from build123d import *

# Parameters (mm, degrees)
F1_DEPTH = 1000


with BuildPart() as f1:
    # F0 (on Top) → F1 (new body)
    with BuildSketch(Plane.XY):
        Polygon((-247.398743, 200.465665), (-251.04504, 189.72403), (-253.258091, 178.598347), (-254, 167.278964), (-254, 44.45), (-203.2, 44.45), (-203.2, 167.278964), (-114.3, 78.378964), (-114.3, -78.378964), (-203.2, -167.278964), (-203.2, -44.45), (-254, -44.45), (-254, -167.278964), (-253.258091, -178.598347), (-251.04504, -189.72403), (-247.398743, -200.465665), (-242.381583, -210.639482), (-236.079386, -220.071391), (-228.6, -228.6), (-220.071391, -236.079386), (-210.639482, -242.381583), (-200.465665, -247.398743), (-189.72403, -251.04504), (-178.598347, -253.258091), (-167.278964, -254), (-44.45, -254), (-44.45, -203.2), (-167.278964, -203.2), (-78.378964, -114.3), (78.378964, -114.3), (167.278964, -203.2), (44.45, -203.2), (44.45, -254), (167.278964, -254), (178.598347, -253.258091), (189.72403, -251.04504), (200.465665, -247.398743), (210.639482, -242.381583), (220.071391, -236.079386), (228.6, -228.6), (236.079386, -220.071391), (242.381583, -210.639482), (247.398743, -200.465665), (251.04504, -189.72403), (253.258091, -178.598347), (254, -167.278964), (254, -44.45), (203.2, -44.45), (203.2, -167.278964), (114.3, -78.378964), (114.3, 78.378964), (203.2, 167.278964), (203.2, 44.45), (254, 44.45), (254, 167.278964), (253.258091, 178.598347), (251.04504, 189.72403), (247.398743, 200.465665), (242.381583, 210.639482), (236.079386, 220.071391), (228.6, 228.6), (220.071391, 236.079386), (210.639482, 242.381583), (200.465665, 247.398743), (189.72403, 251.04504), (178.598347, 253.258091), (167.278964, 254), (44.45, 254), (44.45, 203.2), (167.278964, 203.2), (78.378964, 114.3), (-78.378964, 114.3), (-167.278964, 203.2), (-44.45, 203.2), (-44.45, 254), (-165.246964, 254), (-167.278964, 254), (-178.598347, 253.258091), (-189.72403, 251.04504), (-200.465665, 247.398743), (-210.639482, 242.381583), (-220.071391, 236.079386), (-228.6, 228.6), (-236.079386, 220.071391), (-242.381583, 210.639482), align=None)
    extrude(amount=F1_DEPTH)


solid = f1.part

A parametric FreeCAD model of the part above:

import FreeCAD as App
import Part
import Sketcher
from FreeCAD import Vector
Q = App.Units.Quantity


def add_polygon(sketch, points):
    """Adds a closed chain of lines whose ends are joined by coincident constraints."""
    first, n = sketch.GeometryCount, len(points)
    for a, b in zip(points, points[1:] + points[:1]):
        sketch.addGeometry(Part.LineSegment(App.Vector(*a, 0), App.Vector(*b, 0)), False)
    for i in range(n):
        sketch.addConstraint(Sketcher.Constraint("Coincident", first + i, 2, first + (i + 1) % n, 1))

doc = App.newDocument("Part")
body = doc.addObject("PartDesign::Body", "Body")

sketch1 = doc.addObject("Sketcher::SketchObject", "Sketch")
body.addObject(sketch1)
sketch1.AttachmentSupport = (doc.XY_Plane, [""])
sketch1.MapMode = "FlatFace"
add_polygon(sketch1, [(-247.398743, 200.465665), (-251.04504, 189.72403), (-253.258091, 178.598347), (-254, 167.278964), (-254, 44.45), (-203.2, 44.45), (-203.2, 167.278964), (-114.3, 78.378964), (-114.3, -78.378964), (-203.2, -167.278964), (-203.2, -44.45), (-254, -44.45), (-254, -167.278964), (-253.258091, -178.598347), (-251.04504, -189.72403), (-247.398743, -200.465665), (-242.381583, -210.639482), (-236.079386, -220.071391), (-228.6, -228.6), (-220.071391, -236.079386), (-210.639482, -242.381583), (-200.465665, -247.398743), (-189.72403, -251.04504), (-178.598347, -253.258091), (-167.278964, -254), (-44.45, -254), (-44.45, -203.2), (-167.278964, -203.2), (-78.378964, -114.3), (78.378964, -114.3), (167.278964, -203.2), (44.45, -203.2), (44.45, -254), (167.278964, -254), (178.598347, -253.258091), (189.72403, -251.04504), (200.465665, -247.398743), (210.639482, -242.381583), (220.071391, -236.079386), (228.6, -228.6), (236.079386, -220.071391), (242.381583, -210.639482), (247.398743, -200.465665), (251.04504, -189.72403), (253.258091, -178.598347), (254, -167.278964), (254, -44.45), (203.2, -44.45), (203.2, -167.278964), (114.3, -78.378964), (114.3, 78.378964), (203.2, 167.278964), (203.2, 44.45), (254, 44.45), (254, 167.278964), (253.258091, 178.598347), (251.04504, 189.72403), (247.398743, 200.465665), (242.381583, 210.639482), (236.079386, 220.071391), (228.6, 228.6), (220.071391, 236.079386), (210.639482, 242.381583), (200.465665, 247.398743), (189.72403, 251.04504), (178.598347, 253.258091), (167.278964, 254), (44.45, 254), (44.45, 203.2), (167.278964, 203.2), (78.378964, 114.3), (-78.378964, 114.3), (-167.278964, 203.2), (-44.45, 203.2), (-44.45, 254), (-167.278964, 254), (-178.598347, 253.258091), (-189.72403, 251.04504), (-200.465665, 247.398743), (-210.639482, 242.381583), (-220.071391, 236.079386), (-228.6, 228.6), (-236.079386, 220.071391), (-242.381583, 210.639482)])
sketch1.addConstraint(Sketcher.Constraint("Vertical", 3))
sketch1.addConstraint(Sketcher.Constraint("Horizontal", 4))
sketch1.addConstraint(Sketcher.Constraint("Vertical", 5))
sketch1.addConstraint(Sketcher.Constraint("Vertical", 7))
sketch1.addConstraint(Sketcher.Constraint("Vertical", 9))
sketch1.addConstraint(Sketcher.Constraint("Horizontal", 10))
sketch1.addConstraint(Sketcher.Constraint("Vertical", 11))
sketch1.addConstraint(Sketcher.Constraint("Horizontal", 24))
sketch1.addConstraint(Sketcher.Constraint("Vertical", 25))
sketch1.addConstraint(Sketcher.Constraint("Horizontal", 26))
sketch1.addConstraint(Sketcher.Constraint("Horizontal", 28))
sketch1.addConstraint(Sketcher.Constraint("Horizontal", 30))
sketch1.addConstraint(Sketcher.Constraint("Vertical", 31))
sketch1.addConstraint(Sketcher.Constraint("Horizontal", 32))
sketch1.addConstraint(Sketcher.Constraint("Vertical", 45))
sketch1.addConstraint(Sketcher.Constraint("Horizontal", 46))
sketch1.addConstraint(Sketcher.Constraint("Vertical", 47))
sketch1.addConstraint(Sketcher.Constraint("Vertical", 49))
sketch1.addConstraint(Sketcher.Constraint("Vertical", 51))
sketch1.addConstraint(Sketcher.Constraint("Horizontal", 52))
sketch1.addConstraint(Sketcher.Constraint("Vertical", 53))
sketch1.addConstraint(Sketcher.Constraint("Horizontal", 66))
sketch1.addConstraint(Sketcher.Constraint("Vertical", 67))
sketch1.addConstraint(Sketcher.Constraint("Horizontal", 68))
sketch1.addConstraint(Sketcher.Constraint("Horizontal", 70))
sketch1.addConstraint(Sketcher.Constraint("Horizontal", 72))
sketch1.addConstraint(Sketcher.Constraint("Vertical", 73))
sketch1.addConstraint(Sketcher.Constraint("Horizontal", 74))
sketch1.addConstraint(Sketcher.Constraint("Symmetric", 0, 2, 42, 2, -1, 1))
sketch1.addConstraint(Sketcher.Constraint("Symmetric", 1, 2, 43, 2, -1, 1))
sketch1.addConstraint(Sketcher.Constraint("Symmetric", 2, 2, 44, 2, -1, 1))
sketch1.addConstraint(Sketcher.Constraint("Symmetric", 4, 2, 46, 2, -1, 1))
sketch1.addConstraint(Sketcher.Constraint("Symmetric", 6, 2, 48, 2, -1, 1))
sketch1.addConstraint(Sketcher.Constraint("Symmetric", 8, 2, 50, 2, -1, 1))
sketch1.addConstraint(Sketcher.Constraint("Symmetric", 10, 2, 52, 2, -1, 1))
sketch1.addConstraint(Sketcher.Constraint("Symmetric", 12, 2, 54, 2, -1, 1))
sketch1.addConstraint(Sketcher.Constraint("Symmetric", 13, 2, 55, 2, -1, 1))
sketch1.addConstraint(Sketcher.Constraint("Symmetric", 14, 2, 56, 2, -1, 1))
sketch1.addConstraint(Sketcher.Constraint("Symmetric", 15, 2, 57, 2, -1, 1))
sketch1.addConstraint(Sketcher.Constraint("Symmetric", 16, 2, 58, 2, -1, 1))
sketch1.addConstraint(Sketcher.Constraint("Symmetric", 17, 2, 59, 2, -1, 1))
sketch1.addConstraint(Sketcher.Constraint("Symmetric", 18, 2, 60, 2, -1, 1))
sketch1.addConstraint(Sketcher.Constraint("Symmetric", 19, 2, 61, 2, -1, 1))
sketch1.addConstraint(Sketcher.Constraint("Symmetric", 20, 2, 62, 2, -1, 1))
sketch1.addConstraint(Sketcher.Constraint("Symmetric", 21, 2, 63, 2, -1, 1))
sketch1.addConstraint(Sketcher.Constraint("Symmetric", 22, 2, 64, 2, -1, 1))
sketch1.addConstraint(Sketcher.Constraint("Symmetric", 23, 2, 65, 2, -1, 1))
sketch1.addConstraint(Sketcher.Constraint("Symmetric", 25, 2, 67, 2, -1, 1))
sketch1.addConstraint(Sketcher.Constraint("Symmetric", 27, 2, 69, 2, -1, 1))
sketch1.addConstraint(Sketcher.Constraint("Symmetric", 29, 2, 71, 2, -1, 1))
sketch1.addConstraint(Sketcher.Constraint("Symmetric", 31, 2, 73, 2, -1, 1))
sketch1.addConstraint(Sketcher.Constraint("Symmetric", 33, 2, 75, 2, -1, 1))
sketch1.addConstraint(Sketcher.Constraint("Symmetric", 34, 2, 76, 2, -1, 1))
sketch1.addConstraint(Sketcher.Constraint("Symmetric", 35, 2, 77, 2, -1, 1))
sketch1.addConstraint(Sketcher.Constraint("Symmetric", 36, 2, 78, 2, -1, 1))
sketch1.addConstraint(Sketcher.Constraint("Symmetric", 37, 2, 79, 2, -1, 1))
sketch1.addConstraint(Sketcher.Constraint("Symmetric", 38, 2, 80, 2, -1, 1))
sketch1.addConstraint(Sketcher.Constraint("Symmetric", 39, 2, 81, 2, -1, 1))
sketch1.addConstraint(Sketcher.Constraint("Symmetric", 40, 2, 82, 2, -1, 1))
sketch1.addConstraint(Sketcher.Constraint("Symmetric", 41, 2, 83, 2, -1, 1))
sketch1.addConstraint(Sketcher.Constraint("Symmetric", 26, 2, 29, 2, -2))
sketch1.addConstraint(Sketcher.Constraint("Symmetric", 24, 2, 31, 2, -2))
sketch1.addConstraint(Sketcher.Constraint("Symmetric", 22, 2, 33, 2, -2))
sketch1.addConstraint(Sketcher.Constraint("Symmetric", 21, 2, 34, 2, -2))
sketch1.addConstraint(Sketcher.Constraint("Symmetric", 20, 2, 35, 2, -2))
sketch1.addConstraint(Sketcher.Constraint("Symmetric", 19, 2, 36, 2, -2))
sketch1.addConstraint(Sketcher.Constraint("Symmetric", 18, 2, 37, 2, -2))
sketch1.addConstraint(Sketcher.Constraint("Symmetric", 17, 2, 38, 2, -2))
sketch1.addConstraint(Sketcher.Constraint("Symmetric", 16, 2, 39, 2, -2))
sketch1.addConstraint(Sketcher.Constraint("Symmetric", 15, 2, 40, 2, -2))
sketch1.addConstraint(Sketcher.Constraint("Symmetric", 14, 2, 41, 2, -2))
sketch1.addConstraint(Sketcher.Constraint("Symmetric", 13, 2, 42, 2, -2))
sketch1.addConstraint(Sketcher.Constraint("Symmetric", 12, 2, 43, 2, -2))
sketch1.addConstraint(Sketcher.Constraint("Symmetric", 11, 2, 44, 2, -2))
sketch1.addConstraint(Sketcher.Constraint("Symmetric", 9, 2, 46, 2, -2))
sketch1.addConstraint(Sketcher.Constraint("Perpendicular", 6, 8))
sketch1.addConstraint(Sketcher.Constraint("Perpendicular", 0, 21))
sketch1.addConstraint(Sketcher.Constraint("Perpendicular", 1, 22))
sketch1.addConstraint(Sketcher.Constraint("Perpendicular", 2, 23))
sketch1.addConstraint(Sketcher.Constraint("Parallel", 8, 27))
sketch1.addConstraint(Sketcher.Constraint("Perpendicular", 27, 29))
sketch1.addConstraint(Sketcher.Constraint("Perpendicular", 12, 33))
sketch1.addConstraint(Sketcher.Constraint("Perpendicular", 15, 36))
sketch1.addConstraint(Sketcher.Constraint("Perpendicular", 16, 37))
sketch1.addConstraint(Sketcher.Constraint("Perpendicular", 17, 38))
sketch1.addConstraint(Sketcher.Constraint("Parallel", 29, 48))
sketch1.addConstraint(Sketcher.Constraint("Perpendicular", 48, 50))
sketch1.addConstraint(Sketcher.Constraint("Perpendicular", 33, 54))
sketch1.addConstraint(Sketcher.Constraint("Parallel", 50, 69))
sketch1.addConstraint(Sketcher.Constraint("Perpendicular", 69, 71))
sketch1.addConstraint(Sketcher.Constraint("Perpendicular", 54, 75))
sketch1.addConstraint(Sketcher.Constraint("Horizontal", 2, 2, 5, 2))
sketch1.addConstraint(Sketcher.Constraint("Horizontal", 8, 2, 11, 2))
sketch1.addConstraint(Sketcher.Constraint("Horizontal", 7, 2, 48, 2))
sketch1.addConstraint(Sketcher.Constraint("Vertical", 23, 2, 26, 2))
sketch1.addConstraint(Sketcher.Constraint("Equal", 74, 3))
sketch1.addConstraint(Sketcher.Constraint("Equal", 70, 7))
sketch1.addConstraint(Sketcher.Constraint("Equal", 52, 25))
sketch1.addConstraint(Sketcher.Constraint("Equal", 13, 15))
sketch1.addConstraint(Sketcher.Constraint("Equal", 13, 17))
sketch1.addConstraint(Sketcher.Constraint("Equal", 17, 18))
sketch1.addConstraint(Sketcher.Constraint("Equal", 16, 19))
sketch1.addConstraint(Sketcher.Constraint("Equal", 15, 20))
sketch1.addConstraint(Sketcher.Constraint("Equal", 14, 21))
sketch1.addConstraint(Sketcher.Constraint("Equal", 20, 22))
sketch1.addConstraint(Sketcher.Constraint("Equal", 12, 23))
sketch1.addConstraint(Sketcher.Constraint("Equal", 8, 27))
sketch1.addConstraint(Sketcher.Constraint("DistanceX", 4, 1, 4, 2, 50.8))
sketch1.addConstraint(Sketcher.Constraint("DistanceX", 2, 2, -1, 1, 254.0))
sketch1.addConstraint(Sketcher.Constraint("DistanceX", 6, 2, -1, 1, 114.3))
sketch1.addConstraint(Sketcher.Constraint("DistanceX", 17, 2, -1, 1, 228.6))
sketch1.addConstraint(Sketcher.Constraint("Angle", 0, Q("-108.750016 deg")))
sketch1.addConstraint(Sketcher.Constraint("Angle", 2, Q("-93.749987 deg")))
sketch1.addConstraint(Sketcher.Constraint("Angle", 16, Q("-56.250013 deg")))
sketch1.addConstraint(Sketcher.Constraint("Angle", 17, Q("-48.750013 deg")))
sketch1.addConstraint(Sketcher.Constraint("DistanceY", -1, 1, 3, 2, 44.45))
sketch1.addConstraint(Sketcher.Constraint("DistanceX", 28, 1, 28, 2, 156.757928))
sketch1.addConstraint(Sketcher.Constraint("Distance", 0, 11.343642))
sketch1.addConstraint(Sketcher.Constraint("Distance", 1, 11.343651))
sketch1.addConstraint(Sketcher.Constraint("Distance", 2, 11.343671))
sketch1.addConstraint(Sketcher.Constraint("Distance", 16, 11.343659))
pad1 = doc.addObject("PartDesign::Pad", "Pad")
body.addObject(pad1)
pad1.Profile = sketch1
pad1.Length = 1000

doc.recompute()
